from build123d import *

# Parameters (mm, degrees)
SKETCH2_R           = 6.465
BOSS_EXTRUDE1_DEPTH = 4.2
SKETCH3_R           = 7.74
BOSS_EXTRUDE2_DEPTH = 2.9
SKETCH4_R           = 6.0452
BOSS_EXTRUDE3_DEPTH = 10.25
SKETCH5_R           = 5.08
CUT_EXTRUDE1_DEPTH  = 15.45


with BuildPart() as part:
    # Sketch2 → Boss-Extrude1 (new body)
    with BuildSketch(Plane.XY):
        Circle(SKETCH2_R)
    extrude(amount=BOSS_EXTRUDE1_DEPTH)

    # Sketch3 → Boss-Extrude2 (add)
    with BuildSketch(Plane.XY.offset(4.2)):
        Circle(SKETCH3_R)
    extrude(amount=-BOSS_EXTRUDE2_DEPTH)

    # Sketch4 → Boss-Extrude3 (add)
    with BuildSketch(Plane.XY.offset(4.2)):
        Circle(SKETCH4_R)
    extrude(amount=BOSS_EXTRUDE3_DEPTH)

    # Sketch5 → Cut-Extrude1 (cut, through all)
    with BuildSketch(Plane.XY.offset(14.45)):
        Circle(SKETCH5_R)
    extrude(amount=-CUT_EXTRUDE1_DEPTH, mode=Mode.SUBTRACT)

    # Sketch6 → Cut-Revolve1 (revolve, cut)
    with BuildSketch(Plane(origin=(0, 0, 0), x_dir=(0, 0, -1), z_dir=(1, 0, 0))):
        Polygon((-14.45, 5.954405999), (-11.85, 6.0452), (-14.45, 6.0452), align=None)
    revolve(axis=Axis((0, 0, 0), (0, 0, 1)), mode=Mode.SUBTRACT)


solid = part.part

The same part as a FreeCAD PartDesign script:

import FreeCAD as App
import Part
import Sketcher

V = App.Vector
Q = App.Units.Quantity


def add_polygon(sketch, points):
    """Adds a closed chain of lines whose ends are joined by coincident constraints."""
    first, n = sketch.GeometryCount, len(points)
    for a, b in zip(points, points[1:] + points[:1]):
        sketch.addGeometry(Part.LineSegment(App.Vector(*a, 0), App.Vector(*b, 0)), False)
    for i in range(n):
        sketch.addConstraint(Sketcher.Constraint("Coincident", first + i, 2, first + (i + 1) % n, 1))

doc = App.newDocument("Part")
params = doc.addObject("Spreadsheet::Sheet", "Params")
for row, (alias, value) in enumerate([
    ("sketch1_diameter", "12.93 mm"),
    ("pad1_length", "4.2 mm"),
    ("sketch2_diameter", "15.48 mm"),
    ("pad2_length", "2.9 mm"),
    ("pad3_length", "10.25 mm"),
    ("sketch4_diameter", "10.16 mm"),
    ("sketch5_height", "2.6 mm"),
    ("groove_angle", "360 deg"),
], start=1):
    params.set(f"A{row}", alias)
    params.set(f"B{row}", "=" + value)
    params.setAlias(f"B{row}", alias)

body = doc.addObject("PartDesign::Body", "Body")

sketch1 = body.newObject("Sketcher::SketchObject", "Sketch")
sketch1.AttachmentSupport = (doc.getObject("XY_Plane"), [""])
sketch1.MapMode = "FlatFace"
sketch1.addGeometry(Part.Circle(V(0, 0, 0), V(0, 0, 1), 6), False)
sketch1.addConstraint([
    Sketcher.Constraint("Coincident", 0, 3, -1, 1),
    Sketcher.Constraint("Diameter", 0, 12.93),
])
sketch1.setExpression("Constraints[1]", "Params.sketch1_diameter")
pad1 = body.newObject("PartDesign::Pad", "Pad")
pad1.Profile = sketch1
pad1.setExpression("Length", "Params.pad1_length")

sketch2 = body.newObject("Sketcher::SketchObject", "Sketch001")
sketch2.AttachmentSupport = (doc.getObject("XY_Plane"), [""])
sketch2.MapMode = "FlatFace"
sketch2.AttachmentOffset = App.Placement(V(0, 0, 4.2), App.Rotation())
sketch2.addGeometry(Part.Circle(V(0, 0, 0), V(0, 0, 1), 8), False)
sketch2.addConstraint([
    Sketcher.Constraint("Coincident", 0, 3, -1, 1),
    Sketcher.Constraint("Diameter", 0, 15.48),
])
sketch2.setExpression("Constraints[1]", "Params.sketch2_diameter")
pad2 = body.newObject("PartDesign::Pad", "Pad001")
pad2.Profile = sketch2
pad2.setExpression("Length", "Params.pad2_length")
pad2.Reversed = True

sketch3 = body.newObject("Sketcher::SketchObject", "Sketch002")
sketch3.AttachmentSupport = (doc.getObject("XY_Plane"), [""])
sketch3.MapMode = "FlatFace"
sketch3.AttachmentOffset = App.Placement(V(0, 0, 4.2), App.Rotation())
sketch3.addGeometry(Part.Circle(V(0, 0, 0), V(0, 0, 1), 6), False)
sketch3.addConstraint([
    Sketcher.Constraint("Coincident", 0, 3, -1, 1),
    Sketcher.Constraint("Diameter", 0, 12.0904),
])
pad3 = body.newObject("PartDesign::Pad", "Pad002")
pad3.Profile = sketch3
pad3.setExpression("Length", "Params.pad3_length")

sketch4 = body.newObject("Sketcher::SketchObject", "Sketch003")
sketch4.AttachmentSupport = (doc.getObject("XY_Plane"), [""])
sketch4.MapMode = "FlatFace"
sketch4.AttachmentOffset = App.Placement(V(0, 0, 14.45), App.Rotation())
sketch4.addGeometry(Part.Circle(V(0, 0, 0), V(0, 0, 1), 5), False)
sketch4.addConstraint([
    Sketcher.Constraint("Coincident", 0, 3, -1, 1),
    Sketcher.Constraint("Diameter", 0, 10.16),
])
sketch4.setExpression("Constraints[1]", "Params.sketch4_diameter")
pocket1 = body.newObject("PartDesign::Pocket", "Pocket")
pocket1.Profile = sketch4
pocket1.Type = "ThroughAll"

sketch5 = body.newObject("Sketcher::SketchObject", "Sketch004")
sketch5.AttachmentSupport = (doc.getObject("YZ_Plane"), [""])
sketch5.MapMode = "FlatFace"
add_polygon(sketch5, [(5.95, 14.45), (6.05, 11.85), (6.05, 14.45)])
sketch5.addConstraint([
    Sketcher.Constraint("Vertical", 1),
    Sketcher.Constraint("Horizontal", 2),
    Sketcher.Constraint("Angle", 0, Q("-88 deg")),
    Sketcher.Constraint("DistanceY", 1, 1, 1, 2, 2.6),
    Sketcher.Constraint("DistanceY", -1, 1, 0, 2, 11.85),
    Sketcher.Constraint("DistanceX", -1, 1, 0, 2, 6.0452),
])
sketch5.setExpression("Constraints[6]", "Params.sketch5_height")
groove = body.newObject("PartDesign::Groove", "Groove")
groove.Profile = sketch5
groove.ReferenceAxis = (sketch5, ["V_Axis"])
groove.setExpression("Angle", "Params.groove_angle")

doc.recompute()
